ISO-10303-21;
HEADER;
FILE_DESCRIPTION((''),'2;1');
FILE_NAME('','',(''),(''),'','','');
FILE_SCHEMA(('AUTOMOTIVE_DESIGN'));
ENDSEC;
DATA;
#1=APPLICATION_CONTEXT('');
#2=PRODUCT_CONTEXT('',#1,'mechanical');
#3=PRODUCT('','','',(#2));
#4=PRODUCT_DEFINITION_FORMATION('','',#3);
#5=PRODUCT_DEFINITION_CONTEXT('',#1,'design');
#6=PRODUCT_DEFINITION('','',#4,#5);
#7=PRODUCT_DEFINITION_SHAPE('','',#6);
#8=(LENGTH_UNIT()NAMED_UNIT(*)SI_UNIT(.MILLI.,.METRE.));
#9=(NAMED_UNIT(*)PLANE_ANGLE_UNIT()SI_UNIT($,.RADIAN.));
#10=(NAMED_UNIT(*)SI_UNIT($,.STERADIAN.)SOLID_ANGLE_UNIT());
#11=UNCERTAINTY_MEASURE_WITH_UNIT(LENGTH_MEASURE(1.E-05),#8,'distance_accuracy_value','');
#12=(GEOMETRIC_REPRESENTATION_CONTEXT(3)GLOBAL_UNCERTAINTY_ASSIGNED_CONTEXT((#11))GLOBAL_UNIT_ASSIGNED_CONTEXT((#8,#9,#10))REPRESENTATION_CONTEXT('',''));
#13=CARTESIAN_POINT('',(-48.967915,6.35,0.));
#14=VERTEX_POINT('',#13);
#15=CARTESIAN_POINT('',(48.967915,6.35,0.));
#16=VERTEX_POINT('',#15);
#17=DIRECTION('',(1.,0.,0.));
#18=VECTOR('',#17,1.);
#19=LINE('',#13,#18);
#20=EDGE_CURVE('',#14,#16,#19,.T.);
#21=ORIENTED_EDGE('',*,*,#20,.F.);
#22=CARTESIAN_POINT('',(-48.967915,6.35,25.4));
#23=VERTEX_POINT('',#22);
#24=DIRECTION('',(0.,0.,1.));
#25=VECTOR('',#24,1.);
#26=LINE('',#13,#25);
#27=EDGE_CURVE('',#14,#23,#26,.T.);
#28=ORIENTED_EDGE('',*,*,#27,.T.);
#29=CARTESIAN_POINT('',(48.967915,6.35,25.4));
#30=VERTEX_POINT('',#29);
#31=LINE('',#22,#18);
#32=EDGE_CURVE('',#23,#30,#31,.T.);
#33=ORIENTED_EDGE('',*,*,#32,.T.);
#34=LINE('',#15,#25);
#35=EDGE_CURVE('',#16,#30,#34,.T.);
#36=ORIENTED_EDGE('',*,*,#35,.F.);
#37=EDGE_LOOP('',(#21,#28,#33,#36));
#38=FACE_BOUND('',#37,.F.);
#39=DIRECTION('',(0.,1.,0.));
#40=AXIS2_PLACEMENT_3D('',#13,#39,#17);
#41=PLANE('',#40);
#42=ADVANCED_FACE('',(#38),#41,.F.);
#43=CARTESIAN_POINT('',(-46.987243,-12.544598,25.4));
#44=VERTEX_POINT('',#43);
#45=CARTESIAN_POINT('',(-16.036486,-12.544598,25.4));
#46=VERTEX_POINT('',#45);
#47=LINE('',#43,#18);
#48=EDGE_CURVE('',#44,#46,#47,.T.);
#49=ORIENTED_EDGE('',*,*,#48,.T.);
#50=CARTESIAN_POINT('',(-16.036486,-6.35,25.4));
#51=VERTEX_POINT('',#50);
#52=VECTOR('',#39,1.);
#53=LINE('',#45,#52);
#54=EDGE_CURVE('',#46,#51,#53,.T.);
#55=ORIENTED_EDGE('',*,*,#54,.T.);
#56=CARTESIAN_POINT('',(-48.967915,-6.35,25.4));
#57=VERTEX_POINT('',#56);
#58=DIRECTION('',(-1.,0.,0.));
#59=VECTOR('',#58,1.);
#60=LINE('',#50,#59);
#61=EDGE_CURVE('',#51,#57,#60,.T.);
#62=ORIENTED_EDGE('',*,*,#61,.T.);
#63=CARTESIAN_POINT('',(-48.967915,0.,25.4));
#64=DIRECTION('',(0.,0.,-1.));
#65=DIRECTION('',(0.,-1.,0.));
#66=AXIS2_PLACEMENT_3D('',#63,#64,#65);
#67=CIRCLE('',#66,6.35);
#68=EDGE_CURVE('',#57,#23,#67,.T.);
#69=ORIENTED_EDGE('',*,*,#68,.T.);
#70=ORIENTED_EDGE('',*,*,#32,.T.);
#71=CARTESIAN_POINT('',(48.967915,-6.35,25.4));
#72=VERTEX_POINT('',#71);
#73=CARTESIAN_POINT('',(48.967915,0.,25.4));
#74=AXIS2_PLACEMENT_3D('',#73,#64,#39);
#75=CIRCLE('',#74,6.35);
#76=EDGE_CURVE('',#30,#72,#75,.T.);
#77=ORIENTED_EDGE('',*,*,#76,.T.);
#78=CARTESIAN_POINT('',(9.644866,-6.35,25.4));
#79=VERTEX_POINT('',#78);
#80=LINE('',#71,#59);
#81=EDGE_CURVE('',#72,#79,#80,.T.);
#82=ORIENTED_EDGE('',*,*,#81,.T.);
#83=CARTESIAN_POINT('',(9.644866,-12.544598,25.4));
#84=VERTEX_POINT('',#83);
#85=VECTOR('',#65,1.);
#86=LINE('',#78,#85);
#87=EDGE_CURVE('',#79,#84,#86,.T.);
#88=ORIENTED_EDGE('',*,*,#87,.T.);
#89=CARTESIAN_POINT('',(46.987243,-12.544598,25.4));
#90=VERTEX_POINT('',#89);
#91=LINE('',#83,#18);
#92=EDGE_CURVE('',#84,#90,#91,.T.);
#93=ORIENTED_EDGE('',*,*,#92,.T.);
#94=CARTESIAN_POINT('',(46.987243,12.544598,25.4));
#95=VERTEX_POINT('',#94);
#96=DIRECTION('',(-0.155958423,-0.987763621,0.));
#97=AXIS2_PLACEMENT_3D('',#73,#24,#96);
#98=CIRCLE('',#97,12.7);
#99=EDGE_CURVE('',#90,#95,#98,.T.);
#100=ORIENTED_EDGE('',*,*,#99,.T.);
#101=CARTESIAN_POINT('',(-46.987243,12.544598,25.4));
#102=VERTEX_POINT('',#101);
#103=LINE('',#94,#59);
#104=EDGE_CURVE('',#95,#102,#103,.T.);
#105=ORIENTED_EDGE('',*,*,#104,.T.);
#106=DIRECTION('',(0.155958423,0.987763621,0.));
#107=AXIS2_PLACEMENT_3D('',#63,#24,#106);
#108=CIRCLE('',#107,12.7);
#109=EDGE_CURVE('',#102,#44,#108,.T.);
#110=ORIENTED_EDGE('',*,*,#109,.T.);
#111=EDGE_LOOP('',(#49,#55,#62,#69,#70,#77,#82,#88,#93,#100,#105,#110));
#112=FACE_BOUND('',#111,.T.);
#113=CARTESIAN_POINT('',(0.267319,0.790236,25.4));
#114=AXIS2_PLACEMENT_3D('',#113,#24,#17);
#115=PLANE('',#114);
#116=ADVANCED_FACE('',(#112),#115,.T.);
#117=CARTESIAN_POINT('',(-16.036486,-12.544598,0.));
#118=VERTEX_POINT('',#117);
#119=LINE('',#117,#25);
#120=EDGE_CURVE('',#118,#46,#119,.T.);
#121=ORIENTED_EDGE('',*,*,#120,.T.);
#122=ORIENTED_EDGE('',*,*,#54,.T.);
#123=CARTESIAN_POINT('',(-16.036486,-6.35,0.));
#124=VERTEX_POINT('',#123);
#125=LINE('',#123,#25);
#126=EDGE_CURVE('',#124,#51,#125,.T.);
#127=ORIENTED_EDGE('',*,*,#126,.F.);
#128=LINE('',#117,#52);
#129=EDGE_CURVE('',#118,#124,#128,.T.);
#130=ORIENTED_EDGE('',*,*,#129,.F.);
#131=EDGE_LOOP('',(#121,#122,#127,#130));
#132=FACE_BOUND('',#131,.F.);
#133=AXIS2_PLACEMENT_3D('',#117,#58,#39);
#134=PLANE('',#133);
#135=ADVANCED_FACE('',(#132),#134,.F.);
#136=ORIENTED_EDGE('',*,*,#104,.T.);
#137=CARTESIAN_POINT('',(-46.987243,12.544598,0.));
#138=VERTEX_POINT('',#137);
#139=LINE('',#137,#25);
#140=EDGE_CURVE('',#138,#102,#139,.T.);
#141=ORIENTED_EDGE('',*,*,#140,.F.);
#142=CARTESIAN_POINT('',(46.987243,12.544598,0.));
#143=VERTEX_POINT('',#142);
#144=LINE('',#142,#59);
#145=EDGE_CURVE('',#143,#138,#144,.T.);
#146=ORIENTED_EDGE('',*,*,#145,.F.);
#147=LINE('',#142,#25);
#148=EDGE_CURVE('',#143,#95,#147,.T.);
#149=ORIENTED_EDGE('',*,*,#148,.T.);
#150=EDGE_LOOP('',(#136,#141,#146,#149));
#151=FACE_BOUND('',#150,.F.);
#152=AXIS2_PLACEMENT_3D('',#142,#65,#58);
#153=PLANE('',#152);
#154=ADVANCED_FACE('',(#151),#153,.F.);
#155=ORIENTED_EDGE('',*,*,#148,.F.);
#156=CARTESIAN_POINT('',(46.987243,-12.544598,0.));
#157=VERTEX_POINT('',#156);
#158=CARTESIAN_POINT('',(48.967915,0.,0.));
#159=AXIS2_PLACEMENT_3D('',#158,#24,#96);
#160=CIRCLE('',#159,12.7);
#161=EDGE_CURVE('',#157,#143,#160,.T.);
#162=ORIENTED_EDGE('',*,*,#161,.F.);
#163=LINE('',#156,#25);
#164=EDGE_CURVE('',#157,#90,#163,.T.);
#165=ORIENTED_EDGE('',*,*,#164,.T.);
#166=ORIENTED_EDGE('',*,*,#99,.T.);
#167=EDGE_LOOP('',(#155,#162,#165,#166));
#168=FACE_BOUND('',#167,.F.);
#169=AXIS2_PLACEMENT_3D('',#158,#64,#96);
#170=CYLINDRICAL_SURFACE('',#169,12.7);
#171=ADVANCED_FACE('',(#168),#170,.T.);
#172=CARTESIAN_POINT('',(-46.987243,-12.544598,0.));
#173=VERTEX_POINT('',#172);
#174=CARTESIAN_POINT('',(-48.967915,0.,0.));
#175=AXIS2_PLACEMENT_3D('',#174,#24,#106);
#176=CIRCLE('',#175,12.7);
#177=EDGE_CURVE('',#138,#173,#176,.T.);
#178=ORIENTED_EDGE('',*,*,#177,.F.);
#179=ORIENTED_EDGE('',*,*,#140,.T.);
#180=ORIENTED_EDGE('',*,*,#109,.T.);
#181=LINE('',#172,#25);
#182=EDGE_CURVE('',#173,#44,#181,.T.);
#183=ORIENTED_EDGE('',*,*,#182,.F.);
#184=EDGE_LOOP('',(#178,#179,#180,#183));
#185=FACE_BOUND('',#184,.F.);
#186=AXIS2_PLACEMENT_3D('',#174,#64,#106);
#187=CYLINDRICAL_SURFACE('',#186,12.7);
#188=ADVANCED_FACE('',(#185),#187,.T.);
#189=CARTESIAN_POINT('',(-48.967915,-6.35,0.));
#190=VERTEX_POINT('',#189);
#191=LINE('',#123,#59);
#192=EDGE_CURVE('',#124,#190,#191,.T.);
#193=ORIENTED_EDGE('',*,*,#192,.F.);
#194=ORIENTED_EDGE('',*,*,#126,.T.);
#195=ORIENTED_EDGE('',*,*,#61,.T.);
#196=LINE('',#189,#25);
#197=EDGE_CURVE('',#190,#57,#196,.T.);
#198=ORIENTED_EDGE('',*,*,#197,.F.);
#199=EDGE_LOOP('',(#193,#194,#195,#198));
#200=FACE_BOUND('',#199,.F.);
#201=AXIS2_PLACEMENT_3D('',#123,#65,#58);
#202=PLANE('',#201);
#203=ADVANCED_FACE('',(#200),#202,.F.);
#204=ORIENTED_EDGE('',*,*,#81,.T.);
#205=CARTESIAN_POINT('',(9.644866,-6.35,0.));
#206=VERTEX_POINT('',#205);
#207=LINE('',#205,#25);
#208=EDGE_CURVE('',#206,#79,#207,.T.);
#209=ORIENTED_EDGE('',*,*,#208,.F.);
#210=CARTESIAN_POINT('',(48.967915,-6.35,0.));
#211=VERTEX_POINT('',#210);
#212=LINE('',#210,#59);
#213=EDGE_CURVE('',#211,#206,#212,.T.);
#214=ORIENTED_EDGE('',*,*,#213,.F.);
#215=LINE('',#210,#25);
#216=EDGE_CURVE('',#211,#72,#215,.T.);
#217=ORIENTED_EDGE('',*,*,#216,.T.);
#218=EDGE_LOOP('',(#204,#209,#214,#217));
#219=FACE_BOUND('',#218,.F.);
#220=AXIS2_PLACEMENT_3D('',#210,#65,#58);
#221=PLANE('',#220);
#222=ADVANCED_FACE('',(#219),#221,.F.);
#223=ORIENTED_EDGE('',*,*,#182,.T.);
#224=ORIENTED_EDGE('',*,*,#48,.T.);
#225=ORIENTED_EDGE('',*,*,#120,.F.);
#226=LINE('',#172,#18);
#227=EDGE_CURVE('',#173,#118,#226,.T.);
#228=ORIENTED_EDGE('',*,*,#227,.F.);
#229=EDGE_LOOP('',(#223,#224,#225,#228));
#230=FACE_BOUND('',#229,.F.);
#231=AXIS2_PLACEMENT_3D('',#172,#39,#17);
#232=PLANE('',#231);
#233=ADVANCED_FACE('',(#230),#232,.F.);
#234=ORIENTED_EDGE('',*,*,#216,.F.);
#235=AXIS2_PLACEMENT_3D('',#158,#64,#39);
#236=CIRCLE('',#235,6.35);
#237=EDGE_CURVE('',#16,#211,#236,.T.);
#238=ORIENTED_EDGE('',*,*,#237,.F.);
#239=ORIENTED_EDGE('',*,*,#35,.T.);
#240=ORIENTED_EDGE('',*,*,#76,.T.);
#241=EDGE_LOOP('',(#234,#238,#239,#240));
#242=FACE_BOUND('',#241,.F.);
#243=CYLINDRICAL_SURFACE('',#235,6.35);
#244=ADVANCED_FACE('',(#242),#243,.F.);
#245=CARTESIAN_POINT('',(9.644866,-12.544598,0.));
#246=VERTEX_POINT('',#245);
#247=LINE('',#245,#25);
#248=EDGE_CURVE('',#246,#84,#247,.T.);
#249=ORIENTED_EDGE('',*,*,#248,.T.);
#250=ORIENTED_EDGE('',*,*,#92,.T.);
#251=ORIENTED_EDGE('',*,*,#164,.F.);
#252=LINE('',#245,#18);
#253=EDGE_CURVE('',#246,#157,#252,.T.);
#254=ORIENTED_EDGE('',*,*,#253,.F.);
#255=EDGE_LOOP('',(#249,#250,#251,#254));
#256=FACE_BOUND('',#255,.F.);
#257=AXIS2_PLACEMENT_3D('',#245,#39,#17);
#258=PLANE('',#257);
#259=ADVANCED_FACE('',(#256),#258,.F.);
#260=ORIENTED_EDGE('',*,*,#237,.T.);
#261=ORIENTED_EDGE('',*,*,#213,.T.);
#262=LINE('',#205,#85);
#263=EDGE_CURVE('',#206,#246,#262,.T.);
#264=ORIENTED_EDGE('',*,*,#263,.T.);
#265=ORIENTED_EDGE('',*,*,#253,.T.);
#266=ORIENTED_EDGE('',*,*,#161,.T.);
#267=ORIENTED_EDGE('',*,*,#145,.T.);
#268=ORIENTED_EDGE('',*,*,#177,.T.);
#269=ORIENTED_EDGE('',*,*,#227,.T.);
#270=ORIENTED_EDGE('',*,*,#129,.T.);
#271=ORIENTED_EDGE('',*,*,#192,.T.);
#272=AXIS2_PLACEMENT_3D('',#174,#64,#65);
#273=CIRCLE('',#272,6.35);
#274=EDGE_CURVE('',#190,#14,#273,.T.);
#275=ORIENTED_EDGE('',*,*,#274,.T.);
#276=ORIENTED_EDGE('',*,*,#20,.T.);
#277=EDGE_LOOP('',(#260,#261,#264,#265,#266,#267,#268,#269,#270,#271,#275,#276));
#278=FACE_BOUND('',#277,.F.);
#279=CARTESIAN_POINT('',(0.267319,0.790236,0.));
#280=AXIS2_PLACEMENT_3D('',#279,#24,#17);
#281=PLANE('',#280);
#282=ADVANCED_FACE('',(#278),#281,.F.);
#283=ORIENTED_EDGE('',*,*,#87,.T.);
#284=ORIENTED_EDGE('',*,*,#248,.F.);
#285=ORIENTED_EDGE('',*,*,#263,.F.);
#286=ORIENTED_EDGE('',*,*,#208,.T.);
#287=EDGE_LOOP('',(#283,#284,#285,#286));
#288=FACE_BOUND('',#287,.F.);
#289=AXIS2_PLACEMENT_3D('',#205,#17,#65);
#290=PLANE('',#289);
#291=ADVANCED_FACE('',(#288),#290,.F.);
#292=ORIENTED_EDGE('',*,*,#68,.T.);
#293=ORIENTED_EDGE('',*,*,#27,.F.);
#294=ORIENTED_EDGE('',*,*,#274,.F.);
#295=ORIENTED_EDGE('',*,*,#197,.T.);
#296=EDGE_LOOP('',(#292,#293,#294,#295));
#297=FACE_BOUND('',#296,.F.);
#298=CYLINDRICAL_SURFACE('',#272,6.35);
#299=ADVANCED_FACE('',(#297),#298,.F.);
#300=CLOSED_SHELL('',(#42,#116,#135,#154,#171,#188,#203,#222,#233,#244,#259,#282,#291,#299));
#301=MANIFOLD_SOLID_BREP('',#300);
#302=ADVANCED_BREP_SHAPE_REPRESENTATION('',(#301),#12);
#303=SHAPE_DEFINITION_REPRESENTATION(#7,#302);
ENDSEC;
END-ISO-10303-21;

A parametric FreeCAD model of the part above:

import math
import FreeCAD as App
import Part
import Sketcher

V = App.Vector
Q = App.Units.Quantity

doc = App.newDocument("Part")
body = doc.addObject("PartDesign::Body", "Body")

# Sketch on XY plane
sketch1 = body.newObject("Sketcher::SketchObject", "Sketch")
sketch1.AttachmentSupport = (doc.getObject("XY_Plane"), [""])
sketch1.MapMode = "FlatFace"
sketch1.addGeometry(Part.ArcOfCircle(Part.Circle(V(49, 0, 0), V(0, 0, 1), 13), math.radians(-99), math.radians(99)), False)
sketch1.addGeometry(Part.LineSegment(V(47, 13, 0), V(-47, 13, 0)), False)
sketch1.addGeometry(Part.ArcOfCircle(Part.Circle(V(-49, 0, 0), V(0, 0, 1), 13), math.radians(81), math.radians(279)), False)
sketch1.addGeometry(Part.LineSegment(V(-47, -13, 0), V(-16, -13, 0)), False)
sketch1.addGeometry(Part.LineSegment(V(-16, -13, 0), V(-16, -6, 0)), False)
sketch1.addGeometry(Part.LineSegment(V(-16, -6, 0), V(-49, -6, 0)), False)
sketch1.addGeometry(Part.ArcOfCircle(Part.Circle(V(-49, 0, 0), V(0, 0, 1), 6), math.radians(90), math.radians(270)), False)
sketch1.addGeometry(Part.LineSegment(V(-49, 6, 0), V(49, 6, 0)), False)
sketch1.addGeometry(Part.ArcOfCircle(Part.Circle(V(49, 0, 0), V(0, 0, 1), 6), math.radians(-90), math.radians(90)), False)
sketch1.addGeometry(Part.LineSegment(V(49, -6, 0), V(10, -6, 0)), False)
sketch1.addGeometry(Part.LineSegment(V(10, -6, 0), V(10, -13, 0)), False)
sketch1.addGeometry(Part.LineSegment(V(10, -13, 0), V(47, -13, 0)), False)
sketch1.addConstraint(Sketcher.Constraint("Coincident", 0, 2, 1, 1))
sketch1.addConstraint(Sketcher.Constraint("Coincident", 1, 2, 2, 1))
sketch1.addConstraint(Sketcher.Constraint("Coincident", 2, 2, 3, 1))
sketch1.addConstraint(Sketcher.Constraint("Coincident", 3, 2, 4, 1))
sketch1.addConstraint(Sketcher.Constraint("Coincident", 4, 2, 5, 1))
sketch1.addConstraint(Sketcher.Constraint("Tangent", 5, 2, 6, 2))
sketch1.addConstraint(Sketcher.Constraint("Tangent", 6, 1, 7, 1))
sketch1.addConstraint(Sketcher.Constraint("Tangent", 7, 2, 8, 2))
sketch1.addConstraint(Sketcher.Constraint("Tangent", 8, 1, 9, 1))
sketch1.addConstraint(Sketcher.Constraint("Coincident", 9, 2, 10, 1))
sketch1.addConstraint(Sketcher.Constraint("Coincident", 10, 2, 11, 1))
sketch1.addConstraint(Sketcher.Constraint("Coincident", 11, 2, 0, 1))
sketch1.addConstraint(Sketcher.Constraint("Horizontal", 1))
sketch1.addConstraint(Sketcher.Constraint("Horizontal", 3))
sketch1.addConstraint(Sketcher.Constraint("Vertical", 4))
sketch1.addConstraint(Sketcher.Constraint("Horizontal", 5))
sketch1.addConstraint(Sketcher.Constraint("Horizontal", 7))
sketch1.addConstraint(Sketcher.Constraint("Horizontal", 9))
sketch1.addConstraint(Sketcher.Constraint("Vertical", 10))
sketch1.addConstraint(Sketcher.Constraint("Horizontal", 11))
sketch1.addConstraint(Sketcher.Constraint("Coincident", 6, 3, 2, 3))
sketch1.addConstraint(Sketcher.Constraint("Coincident", 8, 3, 0, 3))
sketch1.addConstraint(Sketcher.Constraint("Equal", 0, 2))
sketch1.addConstraint(Sketcher.Constraint("Equal", 6, 8))
sketch1.addConstraint(Sketcher.Constraint("Symmetric", 0, 3, 2, 3, -1, 1))
sketch1.addConstraint(Sketcher.Constraint("Horizontal", 3, 2, 10, 2))
sketch1.addConstraint(Sketcher.Constraint("Vertical", 1, 2, 2, 2))
sketch1.addConstraint(Sketcher.Constraint("Radius", 0, Q("0.5 in")))
sketch1.addConstraint(Sketcher.Constraint("Radius", 6, Q("0.25 in")))
sketch1.addConstraint(Sketcher.Constraint("DistanceY", 4, 1, 4, 2, Q("6.194598 mm")))
sketch1.addConstraint(Sketcher.Constraint("DistanceX", 5, 2, 5, 1, Q("32.931429 mm")))
sketch1.addConstraint(Sketcher.Constraint("DistanceX", 7, 1, 7, 2, Q("97.93583 mm")))
sketch1.addConstraint(Sketcher.Constraint("DistanceX", 9, 2, 9, 1, Q("39.323049 mm")))
pad1 = body.newObject("PartDesign::Pad", "Pad")
pad1.Profile = sketch1
pad1.Length = Q("1 in")

doc.recompute()
